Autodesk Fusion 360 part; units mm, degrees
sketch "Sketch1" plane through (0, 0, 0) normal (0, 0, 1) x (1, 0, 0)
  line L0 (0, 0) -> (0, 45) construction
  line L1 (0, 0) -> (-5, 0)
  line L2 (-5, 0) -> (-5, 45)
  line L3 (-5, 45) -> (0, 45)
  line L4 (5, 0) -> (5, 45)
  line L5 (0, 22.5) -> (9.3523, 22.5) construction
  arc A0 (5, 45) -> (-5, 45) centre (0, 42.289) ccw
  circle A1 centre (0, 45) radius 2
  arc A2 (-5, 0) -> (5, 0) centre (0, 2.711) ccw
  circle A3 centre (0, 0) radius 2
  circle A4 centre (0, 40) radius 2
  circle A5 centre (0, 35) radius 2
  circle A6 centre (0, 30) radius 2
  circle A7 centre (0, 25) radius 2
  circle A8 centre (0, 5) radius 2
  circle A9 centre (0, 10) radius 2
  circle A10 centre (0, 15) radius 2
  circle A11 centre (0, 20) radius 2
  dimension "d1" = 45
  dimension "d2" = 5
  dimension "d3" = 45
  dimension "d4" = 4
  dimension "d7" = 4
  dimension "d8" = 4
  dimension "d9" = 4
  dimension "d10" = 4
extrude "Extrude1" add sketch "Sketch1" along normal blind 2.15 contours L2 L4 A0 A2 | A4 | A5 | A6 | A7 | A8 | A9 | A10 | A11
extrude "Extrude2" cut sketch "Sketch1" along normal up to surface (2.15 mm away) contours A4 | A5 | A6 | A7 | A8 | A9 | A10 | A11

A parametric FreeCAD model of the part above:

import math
import FreeCAD as App
import Part
import Sketcher
Q = App.Units.Quantity

doc = App.newDocument("Part")
body = doc.addObject("PartDesign::Body", "Body")

# Sketch on XY plane
sketch1 = doc.addObject("Sketcher::SketchObject", "Sketch")
body.addObject(sketch1)
sketch1.AttachmentSupport = (doc.XY_Plane, [""])
sketch1.MapMode = "FlatFace"
sketch1.addGeometry([
    Part.LineSegment(App.Vector(-5, 45, 0), App.Vector(-5, 0, 0)),  # 0
    Part.ArcOfCircle(Part.Circle(App.Vector(0, 2.7, 0), App.Vector(0, 0, 1), 5.7), math.radians(-152), math.radians(-28)),  # 1
    Part.LineSegment(App.Vector(5, 0, 0), App.Vector(5, 45, 0)),  # 2
    Part.ArcOfCircle(Part.Circle(App.Vector(0, 42.3, 0), App.Vector(0, 0, 1), 5.7), math.radians(28), math.radians(152)),  # 3
    Part.Circle(App.Vector(0, 0, 0), App.Vector(0, 0, 1), 2),  # 4
    Part.Circle(App.Vector(0, 45, 0), App.Vector(0, 0, 1), 2),  # 5
], False)
sketch1.addConstraint([
    Sketcher.Constraint("Coincident", 0, 2, 1, 1),
    Sketcher.Constraint("Coincident", 1, 2, 2, 1),
    Sketcher.Constraint("Coincident", 2, 2, 3, 1),
    Sketcher.Constraint("Coincident", 3, 2, 0, 1),
    Sketcher.Constraint("Vertical", 0),
    Sketcher.Constraint("Vertical", 2),
    Sketcher.Constraint("Coincident", 4, 3, -1, 1),
    Sketcher.Constraint("Equal", 1, 3),
    Sketcher.Constraint("Equal", 4, 5),
    Sketcher.Constraint("Symmetric", 0, 2, 1, 2, -1, 1),
    Sketcher.Constraint("PointOnObject", 1, 3, -2),
    Sketcher.Constraint("PointOnObject", 3, 3, -2),
    Sketcher.Constraint("PointOnObject", 5, 3, -2),
    Sketcher.Constraint("Horizontal", 5, 3, 2, 2),
    Sketcher.Constraint("Diameter", 4, Q("4 mm")),
    Sketcher.Constraint("DistanceY", 0, 2, 0, 1, Q("45 mm")),
    Sketcher.Constraint("DistanceX", 0, 2, -1, 1, Q("5 mm")),
    Sketcher.Constraint("Radius", 1, Q("5.6877 mm")),
])
pad1 = doc.addObject("PartDesign::Pad", "Pad")
body.addObject(pad1)
pad1.Profile = sketch1
pad1.Length = 2.15

# Sketch on XY plane
sketch2 = doc.addObject("Sketcher::SketchObject", "Sketch001")
body.addObject(sketch2)
sketch2.AttachmentSupport = (doc.XY_Plane, [""])
sketch2.MapMode = "FlatFace"
sketch2.addGeometry([
    Part.Circle(App.Vector(0, 40, 0), App.Vector(0, 0, 1), 2),  # 0
    Part.Circle(App.Vector(0, 35, 0), App.Vector(0, 0, 1), 2),  # 1
    Part.Circle(App.Vector(0, 30, 0), App.Vector(0, 0, 1), 2),  # 2
    Part.Circle(App.Vector(0, 25, 0), App.Vector(0, 0, 1), 2),  # 3
    Part.Circle(App.Vector(0, 5, 0), App.Vector(0, 0, 1), 2),  # 4
    Part.Circle(App.Vector(0, 10, 0), App.Vector(0, 0, 1), 2),  # 5
    Part.Circle(App.Vector(0, 15, 0), App.Vector(0, 0, 1), 2),  # 6
    Part.Circle(App.Vector(0, 20, 0), App.Vector(0, 0, 1), 2),  # 7
], False)
sketch2.addConstraint([
    Sketcher.Constraint("Equal", 0, 1),
    Sketcher.Constraint("Equal", 1, 2),
    Sketcher.Constraint("Equal", 2, 3),
    Sketcher.Constraint("Equal", 3, 4),
    Sketcher.Constraint("Equal", 4, 5),
    Sketcher.Constraint("Equal", 5, 6),
    Sketcher.Constraint("Equal", 6, 7),
    Sketcher.Constraint("PointOnObject", 0, 3, -2),
    Sketcher.Constraint("PointOnObject", 1, 3, -2),
    Sketcher.Constraint("PointOnObject", 2, 3, -2),
    Sketcher.Constraint("PointOnObject", 3, 3, -2),
    Sketcher.Constraint("PointOnObject", 4, 3, -2),
    Sketcher.Constraint("PointOnObject", 5, 3, -2),
    Sketcher.Constraint("PointOnObject", 6, 3, -2),
    Sketcher.Constraint("PointOnObject", 7, 3, -2),
    Sketcher.Constraint("Diameter", 0, Q("4 mm")),
    Sketcher.Constraint("DistanceY", -1, 1, 4, 3, Q("5 mm")),
    Sketcher.Constraint("DistanceY", 1, 3, 0, 3, Q("5 mm")),
    Sketcher.Constraint("DistanceY", 2, 3, 1, 3, Q("5 mm")),
    Sketcher.Constraint("DistanceY", 3, 3, 2, 3, Q("5 mm")),
    Sketcher.Constraint("DistanceY", 4, 3, 5, 3, Q("5 mm")),
    Sketcher.Constraint("DistanceY", 5, 3, 6, 3, Q("5 mm")),
    Sketcher.Constraint("DistanceY", 7, 3, 3, 3, Q("5 mm")),
    Sketcher.Constraint("DistanceY", 6, 3, 7, 3, Q("5 mm")),
])
pocket1 = doc.addObject("PartDesign::Pocket", "Pocket")
body.addObject(pocket1)
pocket1.Profile = sketch2
pocket1.Length = 2.15
pocket1.Reversed = True

doc.recompute()
